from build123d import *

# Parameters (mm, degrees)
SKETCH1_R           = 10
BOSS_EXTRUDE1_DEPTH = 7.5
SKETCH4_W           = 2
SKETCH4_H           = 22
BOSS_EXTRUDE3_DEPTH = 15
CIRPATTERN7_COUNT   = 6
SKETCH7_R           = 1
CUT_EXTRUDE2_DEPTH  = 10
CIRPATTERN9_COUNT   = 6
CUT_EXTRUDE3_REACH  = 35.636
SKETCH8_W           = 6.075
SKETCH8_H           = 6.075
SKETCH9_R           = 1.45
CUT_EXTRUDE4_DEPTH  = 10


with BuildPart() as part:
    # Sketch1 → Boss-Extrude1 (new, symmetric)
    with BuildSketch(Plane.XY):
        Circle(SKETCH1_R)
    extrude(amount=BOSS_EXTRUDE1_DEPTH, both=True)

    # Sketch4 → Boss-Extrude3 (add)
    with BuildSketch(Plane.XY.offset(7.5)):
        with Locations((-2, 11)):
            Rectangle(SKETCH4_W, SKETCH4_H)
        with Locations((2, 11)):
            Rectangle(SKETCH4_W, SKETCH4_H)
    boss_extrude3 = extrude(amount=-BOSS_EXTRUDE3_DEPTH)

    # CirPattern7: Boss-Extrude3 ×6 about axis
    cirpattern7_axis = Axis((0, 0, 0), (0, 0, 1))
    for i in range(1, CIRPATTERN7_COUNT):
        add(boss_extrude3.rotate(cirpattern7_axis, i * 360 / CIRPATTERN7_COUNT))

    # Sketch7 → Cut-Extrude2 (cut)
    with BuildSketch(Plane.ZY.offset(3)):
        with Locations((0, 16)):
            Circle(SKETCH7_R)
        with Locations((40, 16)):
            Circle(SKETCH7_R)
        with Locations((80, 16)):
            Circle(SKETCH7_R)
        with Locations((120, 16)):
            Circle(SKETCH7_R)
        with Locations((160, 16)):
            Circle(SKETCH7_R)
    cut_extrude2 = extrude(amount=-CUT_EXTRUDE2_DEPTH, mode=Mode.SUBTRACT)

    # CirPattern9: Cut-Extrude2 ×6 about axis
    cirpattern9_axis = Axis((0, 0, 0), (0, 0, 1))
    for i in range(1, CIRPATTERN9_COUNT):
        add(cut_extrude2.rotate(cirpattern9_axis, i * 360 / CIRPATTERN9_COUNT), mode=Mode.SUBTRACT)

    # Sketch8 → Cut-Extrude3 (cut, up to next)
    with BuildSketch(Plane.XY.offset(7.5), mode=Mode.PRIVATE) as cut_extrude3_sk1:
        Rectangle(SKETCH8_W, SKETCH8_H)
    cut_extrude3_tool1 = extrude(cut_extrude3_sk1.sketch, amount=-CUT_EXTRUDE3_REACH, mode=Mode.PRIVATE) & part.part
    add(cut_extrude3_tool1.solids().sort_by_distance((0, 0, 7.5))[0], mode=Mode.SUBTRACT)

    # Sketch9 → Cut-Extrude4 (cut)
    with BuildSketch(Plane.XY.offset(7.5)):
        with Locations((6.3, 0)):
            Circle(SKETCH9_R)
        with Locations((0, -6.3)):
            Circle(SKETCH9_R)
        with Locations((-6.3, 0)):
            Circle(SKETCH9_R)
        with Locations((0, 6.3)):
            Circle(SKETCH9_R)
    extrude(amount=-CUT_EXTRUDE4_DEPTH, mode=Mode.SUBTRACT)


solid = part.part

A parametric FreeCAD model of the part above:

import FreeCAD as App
import Part
import Sketcher
from FreeCAD import Vector
Q = App.Units.Quantity

doc = App.newDocument("Part")
params = doc.addObject("Spreadsheet::Sheet", "Params")
for row, (alias, value) in enumerate([
    ("sketch1_diameter", "20 mm"),
    ("pad1_length", "15 mm"),
    ("sketch2_width", "2 mm"),
    ("sketch2_height", "22 mm"),
    ("pad2_length", "15 mm"),
    ("sketch3_diameter", "2 mm"),
    ("pocket1_length", "10 mm"),
    ("sketch5_diameter", "2.9 mm"),
    ("pocket3_length", "10 mm"),
], start=1):
    params.set(f"A{row}", alias)
    params.set(f"B{row}", "=" + value)
    params.setAlias(f"B{row}", alias)

body = doc.addObject("PartDesign::Body", "Body")

# Sketch on XY plane
sketch1 = body.newObject("Sketcher::SketchObject", "Sketch")
sketch1.AttachmentSupport = (doc.getObject("XY_Plane"), [""])
sketch1.MapMode = "FlatFace"
sketch1.addGeometry(Part.Circle(Vector(0, 0, 0), Vector(0, 0, 1), 10), False)
sketch1.addConstraint([
    Sketcher.Constraint("Coincident", 0, 3, -1, 1),
    Sketcher.Constraint("Diameter", 0, Q("20 mm")),
])
sketch1.setExpression("Constraints[1]", "Params.sketch1_diameter")
pad1 = body.newObject("PartDesign::Pad", "Pad")
pad1.Profile = sketch1
pad1.setExpression("Length", "Params.pad1_length")
pad1.Midplane = True

# Sketch on XY plane
sketch2 = body.newObject("Sketcher::SketchObject", "Sketch001")
sketch2.AttachmentSupport = (doc.getObject("XY_Plane"), [""])
sketch2.MapMode = "FlatFace"
sketch2.AttachmentOffset = App.Placement(Vector(0, 0, 7.5), App.Rotation())
sketch2.addGeometry([
    Part.LineSegment(Vector(-3, 22, 0), Vector(-3, 0, 0)),  # 0
    Part.LineSegment(Vector(-3, 0, 0), Vector(-1, 0, 0)),  # 1
    Part.LineSegment(Vector(-1, 0, 0), Vector(-1, 22, 0)),  # 2
    Part.LineSegment(Vector(-1, 22, 0), Vector(-3, 22, 0)),  # 3
    Part.LineSegment(Vector(1, 22, 0), Vector(1, 0, 0)),  # 4
    Part.LineSegment(Vector(1, 0, 0), Vector(3, 0, 0)),  # 5
    Part.LineSegment(Vector(3, 0, 0), Vector(3, 22, 0)),  # 6
    Part.LineSegment(Vector(3, 22, 0), Vector(1, 22, 0)),  # 7
], False)
sketch2.addConstraint([
    Sketcher.Constraint("Coincident", 0, 2, 1, 1),
    Sketcher.Constraint("Coincident", 1, 2, 2, 1),
    Sketcher.Constraint("Coincident", 2, 2, 3, 1),
    Sketcher.Constraint("Coincident", 3, 2, 0, 1),
    Sketcher.Constraint("Coincident", 4, 2, 5, 1),
    Sketcher.Constraint("Coincident", 5, 2, 6, 1),
    Sketcher.Constraint("Coincident", 6, 2, 7, 1),
    Sketcher.Constraint("Coincident", 7, 2, 4, 1),
    Sketcher.Constraint("Vertical", 0),
    Sketcher.Constraint("Horizontal", 1),
    Sketcher.Constraint("Vertical", 2),
    Sketcher.Constraint("Horizontal", 3),
    Sketcher.Constraint("Vertical", 4),
    Sketcher.Constraint("Horizontal", 5),
    Sketcher.Constraint("Vertical", 6),
    Sketcher.Constraint("Horizontal", 7),
    Sketcher.Constraint("Symmetric", 1, 2, 4, 2, -1, 1),
    Sketcher.Constraint("Symmetric", 0, 2, 5, 2, -2),
    Sketcher.Constraint("Horizontal", 3, 2, 6, 2),
    Sketcher.Constraint("DistanceX", 1, 1, 1, 2, Q("2 mm")),
    Sketcher.Constraint("DistanceY", 0, 2, 0, 1, Q("22 mm")),
    Sketcher.Constraint("DistanceX", 0, 2, -1, 1, Q("3 mm")),
])
sketch2.setExpression("Constraints[19]", "Params.sketch2_width")
sketch2.setExpression("Constraints[20]", "Params.sketch2_height")
pad2 = body.newObject("PartDesign::Pad", "Pad001")
pad2.Profile = sketch2
pad2.setExpression("Length", "Params.pad2_length")
pad2.Reversed = True
doc.recompute()

polarpattern = body.newObject("PartDesign::PolarPattern", "PolarPattern")
polarpattern.Originals = [pad2]
polarpattern.Axis = (doc.getObject("Z_Axis"), [""])
polarpattern.Angle = 360
polarpattern.Occurrences = 6
body.Tip = polarpattern

# Sketch on YZ plane
sketch3 = body.newObject("Sketcher::SketchObject", "Sketch002")
sketch3.AttachmentSupport = (doc.getObject("YZ_Plane"), [""])
sketch3.MapMode = "FlatFace"
sketch3.AttachmentOffset = App.Placement(Vector(0, 0, -3), App.Rotation())
sketch3.addGeometry([
    Part.Circle(Vector(16, 0, 0), Vector(0, 0, 1), 1),  # 0
    Part.Circle(Vector(16, 40, 0), Vector(0, 0, 1), 1),  # 1
    Part.Circle(Vector(16, 80, 0), Vector(0, 0, 1), 1),  # 2
    Part.Circle(Vector(16, 120, 0), Vector(0, 0, 1), 1),  # 3
    Part.Circle(Vector(16, 160, 0), Vector(0, 0, 1), 1),  # 4
], False)
sketch3.addConstraint([
    Sketcher.Constraint("Equal", 0, 1),
    Sketcher.Constraint("Equal", 1, 2),
    Sketcher.Constraint("Equal", 2, 3),
    Sketcher.Constraint("Equal", 3, 4),
    Sketcher.Constraint("PointOnObject", 0, 3, -1),
    Sketcher.Constraint("Vertical", 0, 3, 1, 3),
    Sketcher.Constraint("Vertical", 1, 3, 2, 3),
    Sketcher.Constraint("Vertical", 2, 3, 3, 3),
    Sketcher.Constraint("Vertical", 3, 3, 4, 3),
    Sketcher.Constraint("Diameter", 0, Q("2 mm")),
    Sketcher.Constraint("DistanceX", -1, 1, 0, 3, Q("16 mm")),
    Sketcher.Constraint("DistanceY", -1, 1, 1, 3, Q("40 mm")),
    Sketcher.Constraint("DistanceY", -1, 1, 2, 3, Q("80 mm")),
    Sketcher.Constraint("DistanceY", -1, 1, 3, 3, Q("120 mm")),
    Sketcher.Constraint("DistanceY", -1, 1, 4, 3, Q("160 mm")),
])
sketch3.setExpression("Constraints[9]", "Params.sketch3_diameter")
pocket1 = body.newObject("PartDesign::Pocket", "Pocket")
pocket1.Profile = sketch3
pocket1.setExpression("Length", "Params.pocket1_length")
pocket1.Reversed = True
doc.recompute()

polarpattern2 = body.newObject("PartDesign::PolarPattern", "PolarPattern001")
polarpattern2.Originals = [pocket1]
polarpattern2.Axis = (doc.getObject("Z_Axis"), [""])
polarpattern2.Angle = 360
polarpattern2.Occurrences = 6
body.Tip = polarpattern2

# Sketch on XY plane
sketch4 = body.newObject("Sketcher::SketchObject", "Sketch003")
sketch4.AttachmentSupport = (doc.getObject("XY_Plane"), [""])
sketch4.MapMode = "FlatFace"
sketch4.AttachmentOffset = App.Placement(Vector(0, 0, 7.5), App.Rotation())
sketch4.addGeometry([
    Part.LineSegment(Vector(-3, 3, 0), Vector(-3, -3, 0)),
    Part.LineSegment(Vector(-3, -3, 0), Vector(3, -3, 0)),
    Part.LineSegment(Vector(3, -3, 0), Vector(3, 3, 0)),
    Part.LineSegment(Vector(3, 3, 0), Vector(-3, 3, 0)),
], False)
sketch4.addConstraint([
    Sketcher.Constraint("Coincident", 0, 2, 1, 1),
    Sketcher.Constraint("Coincident", 1, 2, 2, 1),
    Sketcher.Constraint("Coincident", 2, 2, 3, 1),
    Sketcher.Constraint("Coincident", 3, 2, 0, 1),
    Sketcher.Constraint("Vertical", 0),
    Sketcher.Constraint("Horizontal", 1),
    Sketcher.Constraint("Vertical", 2),
    Sketcher.Constraint("Horizontal", 3),
    Sketcher.Constraint("Symmetric", 0, 2, 2, 2, -1, 1),
    Sketcher.Constraint("Equal", 3, 0),
    Sketcher.Constraint("DistanceX", 1, 1, 1, 2, Q("6.075 mm")),
])
pocket2 = body.newObject("PartDesign::Pocket", "Pocket001")
pocket2.Profile = sketch4
pocket2.Type = "UpToFirst"

# Sketch on XY plane
sketch5 = body.newObject("Sketcher::SketchObject", "Sketch004")
sketch5.AttachmentSupport = (doc.getObject("XY_Plane"), [""])
sketch5.MapMode = "FlatFace"
sketch5.AttachmentOffset = App.Placement(Vector(0, 0, 7.5), App.Rotation())
sketch5.addGeometry([
    Part.Circle(Vector(6.3, 0, 0), Vector(0, 0, 1), 1.4),
    Part.Circle(Vector(0, -6.3, 0), Vector(0, 0, 1), 1.4),
    Part.Circle(Vector(-6.3, 0, 0), Vector(0, 0, 1), 1.4),
    Part.Circle(Vector(0, 6.3, 0), Vector(0, 0, 1), 1.4),
], False)
sketch5.addConstraint([
    Sketcher.Constraint("Equal", 0, 1),
    Sketcher.Constraint("Equal", 1, 2),
    Sketcher.Constraint("Equal", 2, 3),
    Sketcher.Constraint("Symmetric", 0, 3, 2, 3, -1, 1),
    Sketcher.Constraint("Symmetric", 1, 3, 3, 3, -1, 1),
    Sketcher.Constraint("PointOnObject", 0, 3, -1),
    Sketcher.Constraint("PointOnObject", 1, 3, -2),
    Sketcher.Constraint("Diameter", 0, Q("2.9 mm")),
    Sketcher.Constraint("DistanceX", -1, 1, 0, 3, Q("6.3 mm")),
    Sketcher.Constraint("DistanceY", 1, 3, -1, 1, Q("6.3 mm")),
])
sketch5.setExpression("Constraints[7]", "Params.sketch5_diameter")
pocket3 = body.newObject("PartDesign::Pocket", "Pocket002")
pocket3.Profile = sketch5
pocket3.setExpression("Length", "Params.pocket3_length")

doc.recompute()
